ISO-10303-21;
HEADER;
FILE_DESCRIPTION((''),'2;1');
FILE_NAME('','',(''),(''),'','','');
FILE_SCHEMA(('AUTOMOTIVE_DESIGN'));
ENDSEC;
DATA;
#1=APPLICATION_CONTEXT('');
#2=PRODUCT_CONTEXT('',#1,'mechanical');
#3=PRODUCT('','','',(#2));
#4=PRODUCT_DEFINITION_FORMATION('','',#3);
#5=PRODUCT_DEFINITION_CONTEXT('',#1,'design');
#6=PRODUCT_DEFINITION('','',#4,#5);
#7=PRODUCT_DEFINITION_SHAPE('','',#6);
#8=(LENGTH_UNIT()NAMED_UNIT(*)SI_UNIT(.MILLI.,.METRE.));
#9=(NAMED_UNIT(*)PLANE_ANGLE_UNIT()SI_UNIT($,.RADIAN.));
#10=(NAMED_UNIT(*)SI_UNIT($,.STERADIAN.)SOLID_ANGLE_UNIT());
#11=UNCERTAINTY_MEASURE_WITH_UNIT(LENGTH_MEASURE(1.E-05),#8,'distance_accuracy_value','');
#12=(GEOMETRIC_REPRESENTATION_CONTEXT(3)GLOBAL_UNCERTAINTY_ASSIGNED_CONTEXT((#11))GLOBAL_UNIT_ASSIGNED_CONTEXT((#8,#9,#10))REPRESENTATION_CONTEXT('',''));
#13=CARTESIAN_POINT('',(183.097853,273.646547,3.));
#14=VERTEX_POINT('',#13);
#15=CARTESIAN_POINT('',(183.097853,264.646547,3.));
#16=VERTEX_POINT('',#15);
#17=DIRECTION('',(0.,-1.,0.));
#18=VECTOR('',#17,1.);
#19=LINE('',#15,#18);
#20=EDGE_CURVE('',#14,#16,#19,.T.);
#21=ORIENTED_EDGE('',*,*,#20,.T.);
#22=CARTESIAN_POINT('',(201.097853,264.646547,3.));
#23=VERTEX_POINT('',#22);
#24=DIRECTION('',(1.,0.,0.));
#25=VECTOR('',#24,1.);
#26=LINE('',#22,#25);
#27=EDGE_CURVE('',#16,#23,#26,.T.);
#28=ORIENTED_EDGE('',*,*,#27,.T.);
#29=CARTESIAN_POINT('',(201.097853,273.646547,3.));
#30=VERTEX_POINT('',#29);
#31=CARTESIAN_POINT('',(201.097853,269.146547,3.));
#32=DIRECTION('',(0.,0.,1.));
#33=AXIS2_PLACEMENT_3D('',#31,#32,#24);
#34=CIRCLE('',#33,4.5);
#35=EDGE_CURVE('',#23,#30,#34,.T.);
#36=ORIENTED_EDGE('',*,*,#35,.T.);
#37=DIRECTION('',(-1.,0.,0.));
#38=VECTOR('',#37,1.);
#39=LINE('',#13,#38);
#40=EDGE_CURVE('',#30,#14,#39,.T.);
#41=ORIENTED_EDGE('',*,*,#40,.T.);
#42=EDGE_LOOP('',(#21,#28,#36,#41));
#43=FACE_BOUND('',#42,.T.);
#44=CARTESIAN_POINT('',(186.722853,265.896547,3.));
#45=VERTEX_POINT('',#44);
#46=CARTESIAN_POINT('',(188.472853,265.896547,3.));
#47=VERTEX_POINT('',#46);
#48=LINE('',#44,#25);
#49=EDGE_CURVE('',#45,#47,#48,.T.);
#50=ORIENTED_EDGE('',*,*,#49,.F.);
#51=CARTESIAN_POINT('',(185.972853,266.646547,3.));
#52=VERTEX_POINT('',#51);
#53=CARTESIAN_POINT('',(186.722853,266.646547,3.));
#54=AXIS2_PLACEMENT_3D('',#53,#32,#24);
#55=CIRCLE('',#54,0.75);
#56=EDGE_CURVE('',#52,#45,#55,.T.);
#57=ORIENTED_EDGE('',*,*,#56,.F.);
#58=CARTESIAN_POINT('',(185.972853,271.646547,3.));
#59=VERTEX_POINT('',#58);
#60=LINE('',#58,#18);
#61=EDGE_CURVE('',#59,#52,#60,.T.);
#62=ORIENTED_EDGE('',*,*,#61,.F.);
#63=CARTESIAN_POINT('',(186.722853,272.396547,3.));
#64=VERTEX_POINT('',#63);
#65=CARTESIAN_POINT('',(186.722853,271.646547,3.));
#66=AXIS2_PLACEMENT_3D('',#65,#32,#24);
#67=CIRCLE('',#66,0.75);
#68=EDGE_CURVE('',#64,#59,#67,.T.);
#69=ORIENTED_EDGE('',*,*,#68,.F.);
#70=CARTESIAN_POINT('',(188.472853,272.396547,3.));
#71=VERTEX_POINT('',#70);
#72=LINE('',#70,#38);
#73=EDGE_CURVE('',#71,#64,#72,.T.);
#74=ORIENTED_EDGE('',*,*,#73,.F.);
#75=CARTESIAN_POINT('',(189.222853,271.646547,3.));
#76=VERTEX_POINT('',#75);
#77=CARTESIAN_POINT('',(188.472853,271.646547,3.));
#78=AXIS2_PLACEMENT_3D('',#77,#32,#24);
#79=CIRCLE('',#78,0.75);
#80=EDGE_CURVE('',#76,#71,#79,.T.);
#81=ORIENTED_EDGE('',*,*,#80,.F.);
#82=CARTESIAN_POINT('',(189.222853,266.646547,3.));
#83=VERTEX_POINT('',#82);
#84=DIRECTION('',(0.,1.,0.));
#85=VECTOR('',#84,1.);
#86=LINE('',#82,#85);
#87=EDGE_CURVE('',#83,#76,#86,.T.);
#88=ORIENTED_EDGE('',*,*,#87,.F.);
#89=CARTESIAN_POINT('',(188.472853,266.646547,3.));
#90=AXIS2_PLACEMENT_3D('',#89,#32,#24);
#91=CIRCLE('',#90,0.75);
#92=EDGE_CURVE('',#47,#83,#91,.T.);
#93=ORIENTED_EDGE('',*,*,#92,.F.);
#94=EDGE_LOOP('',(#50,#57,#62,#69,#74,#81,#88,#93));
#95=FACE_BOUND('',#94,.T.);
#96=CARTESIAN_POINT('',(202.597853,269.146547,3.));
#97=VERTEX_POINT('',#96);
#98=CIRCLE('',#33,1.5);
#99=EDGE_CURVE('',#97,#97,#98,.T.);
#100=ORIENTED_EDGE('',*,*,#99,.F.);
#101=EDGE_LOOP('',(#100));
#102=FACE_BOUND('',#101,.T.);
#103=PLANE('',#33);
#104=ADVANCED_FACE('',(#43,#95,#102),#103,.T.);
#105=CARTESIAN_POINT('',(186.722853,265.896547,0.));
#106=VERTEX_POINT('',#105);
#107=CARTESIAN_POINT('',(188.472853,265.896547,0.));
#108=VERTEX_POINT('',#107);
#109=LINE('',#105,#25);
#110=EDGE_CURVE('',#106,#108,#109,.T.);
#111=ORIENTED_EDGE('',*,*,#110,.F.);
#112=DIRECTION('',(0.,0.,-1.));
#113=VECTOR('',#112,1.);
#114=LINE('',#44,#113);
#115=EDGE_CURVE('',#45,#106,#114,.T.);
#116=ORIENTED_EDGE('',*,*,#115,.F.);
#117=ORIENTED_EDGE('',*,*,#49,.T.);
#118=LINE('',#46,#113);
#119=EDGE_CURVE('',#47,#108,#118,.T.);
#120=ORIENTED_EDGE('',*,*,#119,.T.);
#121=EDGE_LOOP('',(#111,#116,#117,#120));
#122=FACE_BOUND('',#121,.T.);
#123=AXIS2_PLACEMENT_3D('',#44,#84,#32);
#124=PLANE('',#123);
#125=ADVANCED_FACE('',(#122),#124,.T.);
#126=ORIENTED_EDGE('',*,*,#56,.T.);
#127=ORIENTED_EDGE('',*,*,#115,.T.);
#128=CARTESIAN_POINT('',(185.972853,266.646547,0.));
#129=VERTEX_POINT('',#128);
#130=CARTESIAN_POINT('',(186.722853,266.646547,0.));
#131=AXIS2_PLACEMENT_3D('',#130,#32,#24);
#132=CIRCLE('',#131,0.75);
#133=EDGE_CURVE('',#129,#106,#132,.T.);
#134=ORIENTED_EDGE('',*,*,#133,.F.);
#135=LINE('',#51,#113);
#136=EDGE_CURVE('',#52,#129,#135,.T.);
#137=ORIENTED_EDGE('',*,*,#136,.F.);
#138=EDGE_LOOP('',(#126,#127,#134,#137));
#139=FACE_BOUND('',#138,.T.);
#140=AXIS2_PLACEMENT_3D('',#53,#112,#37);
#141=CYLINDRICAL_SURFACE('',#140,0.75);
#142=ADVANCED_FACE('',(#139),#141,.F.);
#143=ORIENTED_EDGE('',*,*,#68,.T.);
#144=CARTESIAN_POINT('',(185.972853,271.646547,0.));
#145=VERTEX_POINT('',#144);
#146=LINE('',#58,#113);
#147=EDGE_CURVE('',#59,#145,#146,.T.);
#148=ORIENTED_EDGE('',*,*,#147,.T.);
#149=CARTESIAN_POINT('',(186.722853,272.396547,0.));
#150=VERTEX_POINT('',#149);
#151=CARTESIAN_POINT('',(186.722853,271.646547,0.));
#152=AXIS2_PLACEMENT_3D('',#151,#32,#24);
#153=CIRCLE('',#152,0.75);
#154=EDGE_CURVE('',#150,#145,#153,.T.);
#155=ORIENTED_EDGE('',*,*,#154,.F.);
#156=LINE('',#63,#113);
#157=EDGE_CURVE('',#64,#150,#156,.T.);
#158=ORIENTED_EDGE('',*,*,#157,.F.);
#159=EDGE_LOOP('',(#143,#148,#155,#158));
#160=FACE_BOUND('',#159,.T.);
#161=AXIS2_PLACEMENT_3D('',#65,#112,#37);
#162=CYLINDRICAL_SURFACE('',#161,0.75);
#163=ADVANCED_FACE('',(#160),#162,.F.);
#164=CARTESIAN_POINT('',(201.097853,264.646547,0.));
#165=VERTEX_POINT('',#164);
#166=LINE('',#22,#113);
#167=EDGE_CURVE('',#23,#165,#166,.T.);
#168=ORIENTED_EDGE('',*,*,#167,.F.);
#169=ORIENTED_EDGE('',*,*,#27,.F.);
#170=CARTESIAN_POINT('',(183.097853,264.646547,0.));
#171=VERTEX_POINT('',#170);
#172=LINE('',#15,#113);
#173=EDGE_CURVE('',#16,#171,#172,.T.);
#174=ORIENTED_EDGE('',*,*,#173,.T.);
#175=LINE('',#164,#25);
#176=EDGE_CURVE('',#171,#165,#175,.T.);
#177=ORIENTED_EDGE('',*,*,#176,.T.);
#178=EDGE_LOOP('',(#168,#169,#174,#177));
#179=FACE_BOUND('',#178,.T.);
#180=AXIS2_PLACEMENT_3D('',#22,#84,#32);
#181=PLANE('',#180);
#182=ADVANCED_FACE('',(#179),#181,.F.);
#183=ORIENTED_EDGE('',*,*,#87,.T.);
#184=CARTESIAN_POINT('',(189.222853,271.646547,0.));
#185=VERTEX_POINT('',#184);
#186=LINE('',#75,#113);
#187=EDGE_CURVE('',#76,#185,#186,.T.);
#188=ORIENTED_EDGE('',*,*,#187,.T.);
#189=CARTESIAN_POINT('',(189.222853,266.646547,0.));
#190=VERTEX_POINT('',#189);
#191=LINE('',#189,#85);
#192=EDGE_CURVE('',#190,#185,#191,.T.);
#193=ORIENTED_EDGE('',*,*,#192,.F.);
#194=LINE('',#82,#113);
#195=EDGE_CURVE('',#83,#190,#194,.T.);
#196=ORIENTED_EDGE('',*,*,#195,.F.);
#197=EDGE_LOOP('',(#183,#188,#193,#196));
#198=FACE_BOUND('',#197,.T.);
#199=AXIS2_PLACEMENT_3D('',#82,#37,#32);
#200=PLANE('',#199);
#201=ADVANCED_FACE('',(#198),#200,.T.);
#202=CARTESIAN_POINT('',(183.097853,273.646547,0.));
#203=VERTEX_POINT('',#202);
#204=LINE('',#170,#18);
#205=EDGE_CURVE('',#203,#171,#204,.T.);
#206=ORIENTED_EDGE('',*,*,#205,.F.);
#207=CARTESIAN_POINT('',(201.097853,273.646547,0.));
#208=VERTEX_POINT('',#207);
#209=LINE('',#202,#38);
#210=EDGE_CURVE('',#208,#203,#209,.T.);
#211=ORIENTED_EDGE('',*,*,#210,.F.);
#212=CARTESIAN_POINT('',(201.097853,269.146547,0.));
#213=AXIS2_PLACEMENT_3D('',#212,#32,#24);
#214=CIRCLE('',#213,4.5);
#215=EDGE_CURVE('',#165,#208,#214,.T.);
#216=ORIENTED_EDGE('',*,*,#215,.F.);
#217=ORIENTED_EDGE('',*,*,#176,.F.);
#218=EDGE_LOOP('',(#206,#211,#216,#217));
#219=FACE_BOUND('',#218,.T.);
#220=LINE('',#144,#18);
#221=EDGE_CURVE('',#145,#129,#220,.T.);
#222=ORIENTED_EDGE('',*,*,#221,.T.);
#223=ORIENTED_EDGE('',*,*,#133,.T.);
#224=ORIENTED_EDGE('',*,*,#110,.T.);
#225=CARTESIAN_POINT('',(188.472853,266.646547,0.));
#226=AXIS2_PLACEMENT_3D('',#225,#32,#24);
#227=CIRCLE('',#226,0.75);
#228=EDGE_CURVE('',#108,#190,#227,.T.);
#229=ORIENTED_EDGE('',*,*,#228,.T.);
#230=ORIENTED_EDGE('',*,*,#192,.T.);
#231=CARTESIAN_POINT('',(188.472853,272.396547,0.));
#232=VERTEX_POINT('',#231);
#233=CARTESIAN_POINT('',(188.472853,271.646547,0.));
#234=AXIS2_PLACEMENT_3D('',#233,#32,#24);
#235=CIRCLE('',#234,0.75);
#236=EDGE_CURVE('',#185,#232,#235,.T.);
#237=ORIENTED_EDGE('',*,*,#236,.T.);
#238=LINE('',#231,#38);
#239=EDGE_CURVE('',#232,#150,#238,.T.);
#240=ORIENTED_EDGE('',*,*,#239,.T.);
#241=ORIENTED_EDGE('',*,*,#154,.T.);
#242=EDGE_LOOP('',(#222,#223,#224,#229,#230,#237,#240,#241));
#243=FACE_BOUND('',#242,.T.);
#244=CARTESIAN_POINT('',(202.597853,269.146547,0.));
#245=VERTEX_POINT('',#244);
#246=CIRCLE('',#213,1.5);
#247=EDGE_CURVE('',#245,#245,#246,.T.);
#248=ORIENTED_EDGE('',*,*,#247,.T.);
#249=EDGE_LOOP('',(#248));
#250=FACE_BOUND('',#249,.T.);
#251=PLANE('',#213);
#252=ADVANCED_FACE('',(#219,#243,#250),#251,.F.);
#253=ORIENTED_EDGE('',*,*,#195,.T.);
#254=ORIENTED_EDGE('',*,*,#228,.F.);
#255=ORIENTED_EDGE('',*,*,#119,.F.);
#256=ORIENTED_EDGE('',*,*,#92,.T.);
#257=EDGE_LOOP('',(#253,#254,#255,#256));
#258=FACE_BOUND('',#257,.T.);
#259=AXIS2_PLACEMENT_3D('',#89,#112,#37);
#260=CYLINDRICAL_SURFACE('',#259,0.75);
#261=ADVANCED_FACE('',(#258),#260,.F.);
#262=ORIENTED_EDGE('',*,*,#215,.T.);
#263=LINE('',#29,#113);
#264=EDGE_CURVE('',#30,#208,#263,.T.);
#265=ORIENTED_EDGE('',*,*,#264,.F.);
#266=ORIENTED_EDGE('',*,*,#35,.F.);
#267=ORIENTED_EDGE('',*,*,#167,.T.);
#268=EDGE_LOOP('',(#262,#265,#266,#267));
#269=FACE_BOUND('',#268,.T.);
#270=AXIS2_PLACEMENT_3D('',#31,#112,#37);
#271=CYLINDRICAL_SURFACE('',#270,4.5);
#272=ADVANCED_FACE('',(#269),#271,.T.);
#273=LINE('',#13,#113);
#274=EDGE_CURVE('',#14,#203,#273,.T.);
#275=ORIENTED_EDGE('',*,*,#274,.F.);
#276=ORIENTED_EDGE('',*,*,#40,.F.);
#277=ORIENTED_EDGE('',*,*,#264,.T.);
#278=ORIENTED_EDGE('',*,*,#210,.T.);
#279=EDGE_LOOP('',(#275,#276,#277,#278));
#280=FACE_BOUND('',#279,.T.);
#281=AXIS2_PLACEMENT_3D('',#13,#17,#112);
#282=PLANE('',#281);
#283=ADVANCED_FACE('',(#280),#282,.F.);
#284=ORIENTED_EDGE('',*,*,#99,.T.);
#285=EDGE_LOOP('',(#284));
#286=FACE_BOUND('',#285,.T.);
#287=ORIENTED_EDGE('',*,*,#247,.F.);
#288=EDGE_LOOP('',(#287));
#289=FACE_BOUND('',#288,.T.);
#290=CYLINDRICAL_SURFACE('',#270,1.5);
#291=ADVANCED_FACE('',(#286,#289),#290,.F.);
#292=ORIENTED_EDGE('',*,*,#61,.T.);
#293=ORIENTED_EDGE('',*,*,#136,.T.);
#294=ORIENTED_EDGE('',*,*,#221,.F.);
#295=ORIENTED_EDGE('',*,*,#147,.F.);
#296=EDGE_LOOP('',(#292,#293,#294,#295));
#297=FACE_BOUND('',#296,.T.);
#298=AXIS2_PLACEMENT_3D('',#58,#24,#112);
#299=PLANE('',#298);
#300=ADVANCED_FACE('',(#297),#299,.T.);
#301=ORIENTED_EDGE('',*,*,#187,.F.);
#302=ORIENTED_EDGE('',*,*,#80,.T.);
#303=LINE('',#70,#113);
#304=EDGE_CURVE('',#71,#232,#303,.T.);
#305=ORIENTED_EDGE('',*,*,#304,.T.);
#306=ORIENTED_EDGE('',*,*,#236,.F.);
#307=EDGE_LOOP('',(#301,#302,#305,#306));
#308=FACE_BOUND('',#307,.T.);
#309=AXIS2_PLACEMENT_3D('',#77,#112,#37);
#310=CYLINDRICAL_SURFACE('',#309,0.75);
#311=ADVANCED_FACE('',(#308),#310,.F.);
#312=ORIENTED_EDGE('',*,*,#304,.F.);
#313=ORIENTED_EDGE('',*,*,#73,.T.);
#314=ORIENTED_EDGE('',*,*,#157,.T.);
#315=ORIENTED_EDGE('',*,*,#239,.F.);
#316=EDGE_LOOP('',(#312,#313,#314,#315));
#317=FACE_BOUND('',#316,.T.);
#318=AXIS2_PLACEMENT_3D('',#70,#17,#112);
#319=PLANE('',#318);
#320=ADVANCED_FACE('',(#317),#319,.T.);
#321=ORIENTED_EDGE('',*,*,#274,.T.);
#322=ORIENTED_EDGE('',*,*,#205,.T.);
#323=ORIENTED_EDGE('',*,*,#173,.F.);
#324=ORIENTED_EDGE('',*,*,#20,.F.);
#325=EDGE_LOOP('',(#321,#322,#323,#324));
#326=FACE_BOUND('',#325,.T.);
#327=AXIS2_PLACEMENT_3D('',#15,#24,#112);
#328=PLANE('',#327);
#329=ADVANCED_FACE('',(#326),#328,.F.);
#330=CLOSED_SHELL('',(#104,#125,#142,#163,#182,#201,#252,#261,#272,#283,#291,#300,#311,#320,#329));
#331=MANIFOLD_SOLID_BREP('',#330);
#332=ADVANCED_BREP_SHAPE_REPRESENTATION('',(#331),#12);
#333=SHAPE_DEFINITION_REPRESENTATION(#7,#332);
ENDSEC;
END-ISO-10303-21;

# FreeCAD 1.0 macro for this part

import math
import FreeCAD as App
import Part
import Sketcher
from FreeCAD import Vector

doc = App.newDocument("Part")
body = doc.addObject("PartDesign::Body", "Body")

sketch1 = body.newObject("Sketcher::SketchObject", "Sketch")
sketch1.AttachmentSupport = (doc.getObject("XY_Plane"), [""])
sketch1.MapMode = "FlatFace"
sketch1.addGeometry(Part.LineSegment(Vector(201.1, 273.6, 0), Vector(183.1, 273.6, 0)), False)
sketch1.addGeometry(Part.LineSegment(Vector(183.1, 273.6, 0), Vector(183.1, 264.6, 0)), False)
sketch1.addGeometry(Part.LineSegment(Vector(183.1, 264.6, 0), Vector(201.1, 264.6, 0)), False)
sketch1.addGeometry(Part.ArcOfCircle(Part.Circle(Vector(201.1, 269.1, 0), Vector(0, 0, 1), 4.5), math.radians(-90), math.radians(90)), False)
sketch1.addGeometry(Part.Circle(Vector(201.1, 269.1, 0), Vector(0, 0, 1), 1.5), False)
sketch1.addGeometry(Part.ArcOfCircle(Part.Circle(Vector(186.7, 266.6, 0), Vector(0, 0, 1), 0.8), math.radians(180), math.radians(270)), False)
sketch1.addGeometry(Part.LineSegment(Vector(186, 266.6, 0), Vector(186, 271.6, 0)), False)
sketch1.addGeometry(Part.ArcOfCircle(Part.Circle(Vector(186.7, 271.6, 0), Vector(0, 0, 1), 0.8), math.radians(90), math.radians(180)), False)
sketch1.addGeometry(Part.LineSegment(Vector(186.7, 272.4, 0), Vector(188.5, 272.4, 0)), False)
sketch1.addGeometry(Part.ArcOfCircle(Part.Circle(Vector(188.5, 271.6, 0), Vector(0, 0, 1), 0.8), math.radians(0), math.radians(90)), False)
sketch1.addGeometry(Part.LineSegment(Vector(189.2, 271.6, 0), Vector(189.2, 266.6, 0)), False)
sketch1.addGeometry(Part.ArcOfCircle(Part.Circle(Vector(188.5, 266.6, 0), Vector(0, 0, 1), 0.8), math.radians(-90), math.radians(0)), False)
sketch1.addGeometry(Part.LineSegment(Vector(188.5, 265.9, 0), Vector(186.7, 265.9, 0)), False)
sketch1.addConstraint(Sketcher.Constraint("Coincident", 0, 2, 1, 1))
sketch1.addConstraint(Sketcher.Constraint("Coincident", 1, 2, 2, 1))
sketch1.addConstraint(Sketcher.Constraint("Tangent", 2, 2, 3, 1))
sketch1.addConstraint(Sketcher.Constraint("Tangent", 3, 2, 0, 1))
sketch1.addConstraint(Sketcher.Constraint("Tangent", 5, 1, 6, 1))
sketch1.addConstraint(Sketcher.Constraint("Tangent", 6, 2, 7, 2))
sketch1.addConstraint(Sketcher.Constraint("Tangent", 7, 1, 8, 1))
sketch1.addConstraint(Sketcher.Constraint("Tangent", 8, 2, 9, 2))
sketch1.addConstraint(Sketcher.Constraint("Tangent", 9, 1, 10, 1))
sketch1.addConstraint(Sketcher.Constraint("Tangent", 10, 2, 11, 2))
sketch1.addConstraint(Sketcher.Constraint("Tangent", 11, 1, 12, 1))
sketch1.addConstraint(Sketcher.Constraint("Tangent", 12, 2, 5, 2))
sketch1.addConstraint(Sketcher.Constraint("Horizontal", 0))
sketch1.addConstraint(Sketcher.Constraint("Vertical", 1))
sketch1.addConstraint(Sketcher.Constraint("Horizontal", 2))
sketch1.addConstraint(Sketcher.Constraint("Vertical", 6))
sketch1.addConstraint(Sketcher.Constraint("Horizontal", 8))
sketch1.addConstraint(Sketcher.Constraint("Vertical", 10))
sketch1.addConstraint(Sketcher.Constraint("Horizontal", 12))
sketch1.addConstraint(Sketcher.Constraint("Coincident", 4, 3, 3, 3))
sketch1.addConstraint(Sketcher.Constraint("Equal", 5, 7))
sketch1.addConstraint(Sketcher.Constraint("Equal", 7, 9))
sketch1.addConstraint(Sketcher.Constraint("Equal", 9, 11))
sketch1.addConstraint(Sketcher.Constraint("Diameter", 4, 3.0))
sketch1.addConstraint(Sketcher.Constraint("Radius", 3, 4.5))
sketch1.addConstraint(Sketcher.Constraint("DistanceX", 0, 2, 0, 1, 18.0))
sketch1.addConstraint(Sketcher.Constraint("DistanceY", 6, 1, 6, 2, 5.0))
sketch1.addConstraint(Sketcher.Constraint("Radius", 5, 0.75))
sketch1.addConstraint(Sketcher.Constraint("DistanceY", 7, 3, 0, 2, 2.0))
sketch1.addConstraint(Sketcher.Constraint("DistanceX", 8, 1, 8, 2, 1.75))
sketch1.addConstraint(Sketcher.Constraint("DistanceX", 5, 3, 3, 3, 14.375))
sketch1.addConstraint(Sketcher.Constraint("DistanceX", -1, 1, 3, 3, 201.097853))
sketch1.addConstraint(Sketcher.Constraint("DistanceY", -1, 1, 3, 3, 269.146547))
pad1 = body.newObject("PartDesign::Pad", "Pad")
pad1.Profile = sketch1
pad1.Length = 3

doc.recompute()
